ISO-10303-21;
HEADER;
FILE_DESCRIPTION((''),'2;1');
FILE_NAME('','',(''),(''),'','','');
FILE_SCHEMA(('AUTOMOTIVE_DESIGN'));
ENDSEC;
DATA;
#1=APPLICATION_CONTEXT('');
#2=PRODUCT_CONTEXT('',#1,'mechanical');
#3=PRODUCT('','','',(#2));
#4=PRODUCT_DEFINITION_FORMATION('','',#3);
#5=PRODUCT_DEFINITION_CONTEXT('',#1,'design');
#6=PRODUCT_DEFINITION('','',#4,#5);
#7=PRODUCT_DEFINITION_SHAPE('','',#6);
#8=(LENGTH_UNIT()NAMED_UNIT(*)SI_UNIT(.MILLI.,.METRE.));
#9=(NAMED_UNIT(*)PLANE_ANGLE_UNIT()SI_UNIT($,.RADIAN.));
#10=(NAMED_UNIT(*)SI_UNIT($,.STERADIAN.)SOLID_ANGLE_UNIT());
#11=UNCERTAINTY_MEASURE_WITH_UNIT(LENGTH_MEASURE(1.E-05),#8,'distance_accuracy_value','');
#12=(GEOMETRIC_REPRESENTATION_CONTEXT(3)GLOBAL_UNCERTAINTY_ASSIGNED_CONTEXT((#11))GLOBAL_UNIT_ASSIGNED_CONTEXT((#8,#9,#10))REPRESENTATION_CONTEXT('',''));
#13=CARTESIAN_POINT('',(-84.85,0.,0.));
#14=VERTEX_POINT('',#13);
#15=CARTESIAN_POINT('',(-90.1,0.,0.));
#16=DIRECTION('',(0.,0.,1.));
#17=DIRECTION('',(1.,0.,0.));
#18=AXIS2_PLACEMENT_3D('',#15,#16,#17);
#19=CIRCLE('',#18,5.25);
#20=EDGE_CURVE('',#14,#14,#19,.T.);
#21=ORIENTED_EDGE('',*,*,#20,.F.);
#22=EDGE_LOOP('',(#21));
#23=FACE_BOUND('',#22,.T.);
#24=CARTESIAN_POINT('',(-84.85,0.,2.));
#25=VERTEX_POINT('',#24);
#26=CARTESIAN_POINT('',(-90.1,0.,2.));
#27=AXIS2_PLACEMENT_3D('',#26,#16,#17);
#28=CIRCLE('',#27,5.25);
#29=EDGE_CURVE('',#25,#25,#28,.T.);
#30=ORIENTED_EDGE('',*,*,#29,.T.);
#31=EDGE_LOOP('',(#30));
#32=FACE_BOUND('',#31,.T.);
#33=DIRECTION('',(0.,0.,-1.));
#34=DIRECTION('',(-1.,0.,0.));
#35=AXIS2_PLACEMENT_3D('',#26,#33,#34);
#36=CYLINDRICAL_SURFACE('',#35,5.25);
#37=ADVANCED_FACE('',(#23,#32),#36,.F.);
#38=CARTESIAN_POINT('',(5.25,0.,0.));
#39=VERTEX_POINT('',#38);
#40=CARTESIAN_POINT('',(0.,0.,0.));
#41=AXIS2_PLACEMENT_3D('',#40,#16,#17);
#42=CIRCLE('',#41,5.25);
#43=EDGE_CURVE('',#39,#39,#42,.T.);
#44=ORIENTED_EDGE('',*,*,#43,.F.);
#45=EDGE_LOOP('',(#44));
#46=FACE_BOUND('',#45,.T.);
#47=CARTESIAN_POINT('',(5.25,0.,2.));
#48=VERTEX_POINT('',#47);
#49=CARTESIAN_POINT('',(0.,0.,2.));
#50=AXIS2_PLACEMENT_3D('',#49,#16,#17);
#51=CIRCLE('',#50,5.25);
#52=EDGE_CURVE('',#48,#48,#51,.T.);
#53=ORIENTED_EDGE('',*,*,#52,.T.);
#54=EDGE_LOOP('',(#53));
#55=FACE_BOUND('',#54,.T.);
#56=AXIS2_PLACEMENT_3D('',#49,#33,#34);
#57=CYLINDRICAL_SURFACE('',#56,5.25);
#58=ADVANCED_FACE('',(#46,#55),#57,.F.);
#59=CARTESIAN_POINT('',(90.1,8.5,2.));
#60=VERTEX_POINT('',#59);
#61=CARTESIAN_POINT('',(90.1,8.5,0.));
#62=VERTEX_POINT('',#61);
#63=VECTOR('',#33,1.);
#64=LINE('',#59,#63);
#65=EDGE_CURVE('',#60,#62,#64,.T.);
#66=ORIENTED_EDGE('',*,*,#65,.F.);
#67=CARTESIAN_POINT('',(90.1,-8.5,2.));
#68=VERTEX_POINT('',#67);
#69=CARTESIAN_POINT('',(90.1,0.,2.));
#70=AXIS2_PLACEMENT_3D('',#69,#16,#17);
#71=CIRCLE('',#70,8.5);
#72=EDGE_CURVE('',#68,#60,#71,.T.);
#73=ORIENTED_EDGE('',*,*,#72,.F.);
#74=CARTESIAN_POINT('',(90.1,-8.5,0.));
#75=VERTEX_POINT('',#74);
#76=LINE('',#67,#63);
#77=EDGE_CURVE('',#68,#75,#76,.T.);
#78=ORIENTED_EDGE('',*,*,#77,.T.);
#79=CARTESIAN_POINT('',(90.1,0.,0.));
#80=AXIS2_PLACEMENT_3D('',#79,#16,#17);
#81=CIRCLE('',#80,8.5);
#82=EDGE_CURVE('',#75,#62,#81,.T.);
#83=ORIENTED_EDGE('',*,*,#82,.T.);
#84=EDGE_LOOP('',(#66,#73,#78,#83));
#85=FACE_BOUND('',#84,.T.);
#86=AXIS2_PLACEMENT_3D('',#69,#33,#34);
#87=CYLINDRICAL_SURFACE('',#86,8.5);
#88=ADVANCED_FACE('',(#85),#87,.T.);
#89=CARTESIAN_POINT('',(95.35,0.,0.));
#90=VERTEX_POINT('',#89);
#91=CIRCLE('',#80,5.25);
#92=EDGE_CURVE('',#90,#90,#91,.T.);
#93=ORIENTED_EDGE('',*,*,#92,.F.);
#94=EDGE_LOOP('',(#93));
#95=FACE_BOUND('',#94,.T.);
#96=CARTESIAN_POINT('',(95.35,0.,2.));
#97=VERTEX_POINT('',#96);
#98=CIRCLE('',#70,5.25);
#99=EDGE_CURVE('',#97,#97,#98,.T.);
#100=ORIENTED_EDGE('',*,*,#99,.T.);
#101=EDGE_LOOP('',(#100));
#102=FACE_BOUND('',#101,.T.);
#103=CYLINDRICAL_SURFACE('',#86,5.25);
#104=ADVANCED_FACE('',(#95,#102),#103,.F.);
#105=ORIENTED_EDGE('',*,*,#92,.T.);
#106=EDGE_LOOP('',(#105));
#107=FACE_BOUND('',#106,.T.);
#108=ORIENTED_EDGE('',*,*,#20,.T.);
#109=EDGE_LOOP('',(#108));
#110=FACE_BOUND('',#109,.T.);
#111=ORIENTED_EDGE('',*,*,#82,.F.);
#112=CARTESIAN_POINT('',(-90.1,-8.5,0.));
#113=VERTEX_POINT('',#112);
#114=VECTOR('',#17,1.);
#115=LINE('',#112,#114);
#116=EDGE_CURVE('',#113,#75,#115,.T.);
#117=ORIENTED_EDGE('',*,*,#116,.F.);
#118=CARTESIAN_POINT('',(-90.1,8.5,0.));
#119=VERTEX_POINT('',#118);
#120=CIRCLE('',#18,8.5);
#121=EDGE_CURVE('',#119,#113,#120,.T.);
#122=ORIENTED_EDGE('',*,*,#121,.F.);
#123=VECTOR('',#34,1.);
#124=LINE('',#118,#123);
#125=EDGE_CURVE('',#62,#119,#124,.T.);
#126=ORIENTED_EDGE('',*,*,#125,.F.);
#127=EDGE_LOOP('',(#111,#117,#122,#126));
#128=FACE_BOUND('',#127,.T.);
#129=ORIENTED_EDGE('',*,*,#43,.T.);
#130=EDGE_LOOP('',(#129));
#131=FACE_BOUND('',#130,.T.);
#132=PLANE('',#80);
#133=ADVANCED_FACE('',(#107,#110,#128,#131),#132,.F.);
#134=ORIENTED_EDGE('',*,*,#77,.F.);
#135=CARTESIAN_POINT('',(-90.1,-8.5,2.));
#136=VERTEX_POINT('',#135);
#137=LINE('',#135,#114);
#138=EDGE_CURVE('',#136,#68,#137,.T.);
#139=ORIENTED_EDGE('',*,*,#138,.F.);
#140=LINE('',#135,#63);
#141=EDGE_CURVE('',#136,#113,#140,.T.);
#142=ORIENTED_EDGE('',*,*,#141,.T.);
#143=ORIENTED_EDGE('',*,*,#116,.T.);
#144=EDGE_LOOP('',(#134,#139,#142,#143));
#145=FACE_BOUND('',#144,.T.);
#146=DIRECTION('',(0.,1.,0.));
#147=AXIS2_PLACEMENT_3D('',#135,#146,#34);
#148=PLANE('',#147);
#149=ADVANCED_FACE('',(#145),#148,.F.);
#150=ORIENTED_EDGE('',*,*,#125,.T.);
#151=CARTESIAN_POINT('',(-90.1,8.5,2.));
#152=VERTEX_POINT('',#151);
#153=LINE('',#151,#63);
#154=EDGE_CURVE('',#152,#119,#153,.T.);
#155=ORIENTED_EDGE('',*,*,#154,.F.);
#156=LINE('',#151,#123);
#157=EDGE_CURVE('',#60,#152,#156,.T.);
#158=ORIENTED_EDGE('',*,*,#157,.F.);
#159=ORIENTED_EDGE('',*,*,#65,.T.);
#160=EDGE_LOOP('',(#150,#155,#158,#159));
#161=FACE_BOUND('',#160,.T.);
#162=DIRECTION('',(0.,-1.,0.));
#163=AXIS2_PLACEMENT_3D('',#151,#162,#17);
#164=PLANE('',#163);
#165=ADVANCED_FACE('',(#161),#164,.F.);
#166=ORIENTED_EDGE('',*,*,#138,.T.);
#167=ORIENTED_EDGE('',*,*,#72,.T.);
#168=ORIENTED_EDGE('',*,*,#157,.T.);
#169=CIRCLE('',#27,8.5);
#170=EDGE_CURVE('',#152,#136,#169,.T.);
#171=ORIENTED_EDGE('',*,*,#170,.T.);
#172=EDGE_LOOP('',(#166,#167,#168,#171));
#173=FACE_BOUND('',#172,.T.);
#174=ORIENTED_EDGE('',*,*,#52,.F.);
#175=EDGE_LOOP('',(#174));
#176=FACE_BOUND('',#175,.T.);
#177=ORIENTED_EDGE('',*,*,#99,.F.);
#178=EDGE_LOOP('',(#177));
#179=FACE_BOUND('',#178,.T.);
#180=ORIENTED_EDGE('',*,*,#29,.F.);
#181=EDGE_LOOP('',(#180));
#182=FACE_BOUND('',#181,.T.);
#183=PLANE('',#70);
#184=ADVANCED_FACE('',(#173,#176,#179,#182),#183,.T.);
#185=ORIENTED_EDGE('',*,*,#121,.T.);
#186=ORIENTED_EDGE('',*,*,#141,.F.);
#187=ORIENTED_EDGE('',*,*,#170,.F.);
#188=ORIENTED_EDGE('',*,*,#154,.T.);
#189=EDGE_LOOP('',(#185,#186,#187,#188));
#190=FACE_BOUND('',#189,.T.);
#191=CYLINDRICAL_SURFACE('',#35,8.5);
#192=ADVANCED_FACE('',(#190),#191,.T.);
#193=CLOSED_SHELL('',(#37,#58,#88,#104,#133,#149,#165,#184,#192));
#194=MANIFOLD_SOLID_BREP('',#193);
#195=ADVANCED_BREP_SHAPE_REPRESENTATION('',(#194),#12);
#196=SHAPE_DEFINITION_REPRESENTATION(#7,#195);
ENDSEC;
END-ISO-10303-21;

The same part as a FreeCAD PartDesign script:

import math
import FreeCAD as App
import Part
import Sketcher
Q = App.Units.Quantity

doc = App.newDocument("Part")
params = doc.addObject("Spreadsheet::Sheet", "Params")
for row, (alias, value) in enumerate([
    ("sketch1_diameter", "10.5 mm"),
    ("sketch1_radius", "8.5 mm"),
    ("sketch1_width", "180.2 mm"),
    ("pad1_length", "2 mm"),
], start=1):
    params.set(f"A{row}", alias)
    params.set(f"B{row}", "=" + value)
    params.setAlias(f"B{row}", alias)

body = doc.addObject("PartDesign::Body", "Body")

sketch1 = body.newObject("Sketcher::SketchObject", "Sketch")
sketch1.AttachmentSupport = (doc.getObject("XY_Plane"), [""])
sketch1.MapMode = "FlatFace"
sketch1.addGeometry([
    Part.LineSegment(App.Vector(90, 8, 0), App.Vector(-90, 8, 0)),
    Part.ArcOfCircle(Part.Circle(App.Vector(-90, 0, 0), App.Vector(0, 0, 1), 8), math.radians(90), math.radians(270)),
    Part.LineSegment(App.Vector(-90, -8, 0), App.Vector(90, -8, 0)),
    Part.ArcOfCircle(Part.Circle(App.Vector(90, 0, 0), App.Vector(0, 0, 1), 8), math.radians(-90), math.radians(90)),
    Part.Circle(App.Vector(90, 0, 0), App.Vector(0, 0, 1), 5),
    Part.Circle(App.Vector(0, 0, 0), App.Vector(0, 0, 1), 5),
    Part.Circle(App.Vector(-90, 0, 0), App.Vector(0, 0, 1), 5),
], False)
sketch1.addConstraint([
    Sketcher.Constraint("Tangent", 0, 2, 1, 1),
    Sketcher.Constraint("Tangent", 1, 2, 2, 1),
    Sketcher.Constraint("Tangent", 2, 2, 3, 1),
    Sketcher.Constraint("Tangent", 3, 2, 0, 1),
    Sketcher.Constraint("Horizontal", 0),
    Sketcher.Constraint("Horizontal", 2),
    Sketcher.Constraint("Coincident", 5, 3, -1, 1),
    Sketcher.Constraint("Coincident", 4, 3, 3, 3),
    Sketcher.Constraint("Coincident", 6, 3, 1, 3),
    Sketcher.Constraint("Equal", 4, 5),
    Sketcher.Constraint("Equal", 5, 6),
    Sketcher.Constraint("Symmetric", 1, 3, 3, 3, -1, 1),
    Sketcher.Constraint("Diameter", 4, Q("10.5 mm")),
    Sketcher.Constraint("Radius", 1, Q("8.5 mm")),
    Sketcher.Constraint("DistanceX", 0, 2, 0, 1, Q("180.2 mm")),
])
sketch1.setExpression("Constraints[12]", "Params.sketch1_diameter")
sketch1.setExpression("Constraints[13]", "Params.sketch1_radius")
sketch1.setExpression("Constraints[14]", "Params.sketch1_width")
pad1 = body.newObject("PartDesign::Pad", "Pad")
pad1.Profile = sketch1
pad1.setExpression("Length", "Params.pad1_length")

doc.recompute()
